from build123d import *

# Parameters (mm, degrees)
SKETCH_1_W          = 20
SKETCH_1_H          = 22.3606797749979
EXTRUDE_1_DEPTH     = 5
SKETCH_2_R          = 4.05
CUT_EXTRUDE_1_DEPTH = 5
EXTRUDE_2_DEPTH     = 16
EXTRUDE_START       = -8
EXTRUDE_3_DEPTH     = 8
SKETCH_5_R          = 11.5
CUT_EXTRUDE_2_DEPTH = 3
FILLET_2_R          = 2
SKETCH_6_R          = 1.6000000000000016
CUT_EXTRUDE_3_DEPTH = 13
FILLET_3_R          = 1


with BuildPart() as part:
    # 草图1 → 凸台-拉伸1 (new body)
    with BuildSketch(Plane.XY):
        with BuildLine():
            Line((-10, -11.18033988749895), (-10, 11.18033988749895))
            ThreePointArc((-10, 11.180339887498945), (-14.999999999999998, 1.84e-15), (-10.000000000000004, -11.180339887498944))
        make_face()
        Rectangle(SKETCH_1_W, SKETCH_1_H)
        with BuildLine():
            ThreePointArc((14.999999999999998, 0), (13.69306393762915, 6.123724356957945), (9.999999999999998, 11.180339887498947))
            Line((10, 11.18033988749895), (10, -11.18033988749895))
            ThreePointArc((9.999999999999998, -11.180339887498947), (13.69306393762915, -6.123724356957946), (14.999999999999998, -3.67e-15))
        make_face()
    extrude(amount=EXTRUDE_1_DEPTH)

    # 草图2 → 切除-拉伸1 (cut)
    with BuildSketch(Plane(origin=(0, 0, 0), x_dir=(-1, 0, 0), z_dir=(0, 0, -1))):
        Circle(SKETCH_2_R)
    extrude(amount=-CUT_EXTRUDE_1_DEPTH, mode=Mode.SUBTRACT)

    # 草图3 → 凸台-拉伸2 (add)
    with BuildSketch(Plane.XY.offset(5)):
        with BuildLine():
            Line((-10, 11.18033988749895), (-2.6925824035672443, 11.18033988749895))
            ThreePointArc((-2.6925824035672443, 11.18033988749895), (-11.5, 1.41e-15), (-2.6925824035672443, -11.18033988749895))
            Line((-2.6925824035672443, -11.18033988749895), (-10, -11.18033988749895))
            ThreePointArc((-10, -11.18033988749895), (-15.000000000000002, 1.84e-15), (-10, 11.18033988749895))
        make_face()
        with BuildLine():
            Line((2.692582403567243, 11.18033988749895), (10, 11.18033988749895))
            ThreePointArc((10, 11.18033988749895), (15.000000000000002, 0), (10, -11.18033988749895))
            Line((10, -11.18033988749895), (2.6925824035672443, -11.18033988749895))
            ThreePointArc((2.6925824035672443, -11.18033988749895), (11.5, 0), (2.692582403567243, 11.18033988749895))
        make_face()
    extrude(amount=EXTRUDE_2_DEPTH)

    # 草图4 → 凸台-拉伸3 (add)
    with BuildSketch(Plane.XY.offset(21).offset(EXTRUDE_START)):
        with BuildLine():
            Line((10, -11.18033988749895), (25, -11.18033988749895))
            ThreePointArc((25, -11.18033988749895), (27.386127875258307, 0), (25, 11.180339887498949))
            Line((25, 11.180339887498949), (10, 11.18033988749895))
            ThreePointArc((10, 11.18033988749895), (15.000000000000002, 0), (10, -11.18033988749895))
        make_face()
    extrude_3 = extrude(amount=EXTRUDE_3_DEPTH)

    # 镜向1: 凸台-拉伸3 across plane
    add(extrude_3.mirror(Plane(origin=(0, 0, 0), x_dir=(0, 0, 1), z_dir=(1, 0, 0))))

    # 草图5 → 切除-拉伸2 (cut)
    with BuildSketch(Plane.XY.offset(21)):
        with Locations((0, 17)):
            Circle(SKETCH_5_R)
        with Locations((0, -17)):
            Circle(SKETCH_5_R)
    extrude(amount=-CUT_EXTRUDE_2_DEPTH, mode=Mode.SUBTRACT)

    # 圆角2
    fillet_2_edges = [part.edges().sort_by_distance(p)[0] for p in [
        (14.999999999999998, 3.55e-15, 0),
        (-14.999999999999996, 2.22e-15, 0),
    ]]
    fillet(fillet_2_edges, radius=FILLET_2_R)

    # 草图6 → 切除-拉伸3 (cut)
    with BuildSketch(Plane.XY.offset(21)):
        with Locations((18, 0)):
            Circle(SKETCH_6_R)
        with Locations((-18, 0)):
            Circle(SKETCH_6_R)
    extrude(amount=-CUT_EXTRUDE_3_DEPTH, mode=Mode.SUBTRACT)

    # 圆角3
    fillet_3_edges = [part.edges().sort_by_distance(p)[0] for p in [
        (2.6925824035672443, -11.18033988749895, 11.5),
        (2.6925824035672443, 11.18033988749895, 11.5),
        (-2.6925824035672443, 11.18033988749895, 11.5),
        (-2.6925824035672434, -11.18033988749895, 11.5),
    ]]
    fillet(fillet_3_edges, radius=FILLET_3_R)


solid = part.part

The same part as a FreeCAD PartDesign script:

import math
import FreeCAD as App
import Part
import Sketcher

V = App.Vector
Q = App.Units.Quantity


def edges_at(feature, points):
    """Names of the edges that pass closest to the given points."""
    edges = feature.Shape.Edges
    near = lambda p: min(range(len(edges)), key=lambda i: edges[i].distToShape(Part.Vertex(*p))[0])
    return sorted({f"Edge{near(p) + 1}" for p in points})

doc = App.newDocument("Part")
body = doc.addObject("PartDesign::Body", "Body")

# Sketch on XY plane
sketch1 = doc.addObject("Sketcher::SketchObject", "Sketch")
body.addObject(sketch1)
sketch1.AttachmentSupport = (doc.XY_Plane, [""])
sketch1.MapMode = "FlatFace"
sketch1.addGeometry(Part.ArcOfCircle(Part.Circle(V(0, 0, 0), V(0, 0, 1), 15), math.radians(132), math.radians(228)), False)
sketch1.addGeometry(Part.LineSegment(V(-10, -11, 0), V(10, -11, 0)), False)
sketch1.addGeometry(Part.ArcOfCircle(Part.Circle(V(0, 0, 0), V(0, 0, 1), 15), math.radians(-48), math.radians(48)), False)
sketch1.addGeometry(Part.LineSegment(V(10, 11, 0), V(-10, 11, 0)), False)
sketch1.addConstraint(Sketcher.Constraint("Coincident", 0, 2, 1, 1))
sketch1.addConstraint(Sketcher.Constraint("Coincident", 1, 2, 2, 1))
sketch1.addConstraint(Sketcher.Constraint("Coincident", 2, 2, 3, 1))
sketch1.addConstraint(Sketcher.Constraint("Coincident", 3, 2, 0, 1))
sketch1.addConstraint(Sketcher.Constraint("Horizontal", 1))
sketch1.addConstraint(Sketcher.Constraint("Horizontal", 3))
sketch1.addConstraint(Sketcher.Constraint("Coincident", 0, 3, -1, 1))
sketch1.addConstraint(Sketcher.Constraint("Coincident", 2, 3, -1, 1))
sketch1.addConstraint(Sketcher.Constraint("Equal", 0, 2))
sketch1.addConstraint(Sketcher.Constraint("Vertical", 1, 2, 2, 2))
sketch1.addConstraint(Sketcher.Constraint("Radius", 0, Q("15 mm")))
sketch1.addConstraint(Sketcher.Constraint("DistanceX", 1, 1, 1, 2, Q("20 mm")))
pad1 = doc.addObject("PartDesign::Pad", "Pad")
body.addObject(pad1)
pad1.Profile = sketch1
pad1.Length = 5

# Sketch on XY plane
sketch2 = doc.addObject("Sketcher::SketchObject", "Sketch001")
body.addObject(sketch2)
sketch2.AttachmentSupport = (doc.XY_Plane, [""])
sketch2.MapMode = "FlatFace"
sketch2.addGeometry(Part.Circle(V(0, 0, 0), V(0, 0, 1), 4), False)
sketch2.addConstraint(Sketcher.Constraint("Coincident", 0, 3, -1, 1))
sketch2.addConstraint(Sketcher.Constraint("Diameter", 0, Q("8.1 mm")))
pocket1 = doc.addObject("PartDesign::Pocket", "Pocket")
body.addObject(pocket1)
pocket1.Profile = sketch2
pocket1.Length = 5
pocket1.Reversed = True

# Sketch on XY plane
sketch3 = doc.addObject("Sketcher::SketchObject", "Sketch002")
body.addObject(sketch3)
sketch3.AttachmentSupport = (doc.XY_Plane, [""])
sketch3.MapMode = "FlatFace"
sketch3.AttachmentOffset = App.Placement(V(0, 0, 5), App.Rotation())
sketch3.addGeometry(Part.LineSegment(V(-3, 11, 0), V(-10, 11, 0)), False)
sketch3.addGeometry(Part.ArcOfCircle(Part.Circle(V(0, 0, 0), V(0, 0, 1), 15), math.radians(132), math.radians(228)), False)
sketch3.addGeometry(Part.LineSegment(V(-10, -11, 0), V(-3, -11, 0)), False)
sketch3.addGeometry(Part.ArcOfCircle(Part.Circle(V(0, 0, 0), V(0, 0, 1), 12), math.radians(104), math.radians(256)), False)
sketch3.addGeometry(Part.LineSegment(V(10, 11, 0), V(3, 11, 0)), False)
sketch3.addGeometry(Part.ArcOfCircle(Part.Circle(V(0, 0, 0), V(0, 0, 1), 12), math.radians(-76), math.radians(76)), False)
sketch3.addGeometry(Part.LineSegment(V(3, -11, 0), V(10, -11, 0)), False)
sketch3.addGeometry(Part.ArcOfCircle(Part.Circle(V(0, 0, 0), V(0, 0, 1), 15), math.radians(-48), math.radians(48)), False)
sketch3.addConstraint(Sketcher.Constraint("Coincident", 0, 2, 1, 1))
sketch3.addConstraint(Sketcher.Constraint("Coincident", 1, 2, 2, 1))
sketch3.addConstraint(Sketcher.Constraint("Coincident", 2, 2, 3, 2))
sketch3.addConstraint(Sketcher.Constraint("Coincident", 3, 1, 0, 1))
sketch3.addConstraint(Sketcher.Constraint("Coincident", 4, 2, 5, 2))
sketch3.addConstraint(Sketcher.Constraint("Coincident", 5, 1, 6, 1))
sketch3.addConstraint(Sketcher.Constraint("Coincident", 6, 2, 7, 1))
sketch3.addConstraint(Sketcher.Constraint("Coincident", 7, 2, 4, 1))
sketch3.addConstraint(Sketcher.Constraint("Horizontal", 0))
sketch3.addConstraint(Sketcher.Constraint("Horizontal", 2))
sketch3.addConstraint(Sketcher.Constraint("Horizontal", 4))
sketch3.addConstraint(Sketcher.Constraint("Horizontal", 6))
sketch3.addConstraint(Sketcher.Constraint("Coincident", 1, 3, -1, 1))
sketch3.addConstraint(Sketcher.Constraint("Coincident", 3, 3, -1, 1))
sketch3.addConstraint(Sketcher.Constraint("Coincident", 5, 3, -1, 1))
sketch3.addConstraint(Sketcher.Constraint("Coincident", 7, 3, -1, 1))
sketch3.addConstraint(Sketcher.Constraint("Equal", 3, 5))
sketch3.addConstraint(Sketcher.Constraint("Equal", 1, 7))
sketch3.addConstraint(Sketcher.Constraint("Horizontal", 3, 1, 4, 2))
sketch3.addConstraint(Sketcher.Constraint("Horizontal", 2, 2, 5, 1))
sketch3.addConstraint(Sketcher.Constraint("Vertical", 0, 2, 1, 2))
sketch3.addConstraint(Sketcher.Constraint("Radius", 1, Q("15 mm")))
sketch3.addConstraint(Sketcher.Constraint("Radius", 3, Q("11.5 mm")))
sketch3.addConstraint(Sketcher.Constraint("DistanceX", 0, 2, -1, 1, Q("10 mm")))
pad2 = doc.addObject("PartDesign::Pad", "Pad001")
body.addObject(pad2)
pad2.Profile = sketch3
pad2.Length = 16

# Sketch on XY plane
sketch4 = doc.addObject("Sketcher::SketchObject", "Sketch003")
body.addObject(sketch4)
sketch4.AttachmentSupport = (doc.XY_Plane, [""])
sketch4.MapMode = "FlatFace"
sketch4.AttachmentOffset = App.Placement(V(0, 0, 13), App.Rotation())
sketch4.addGeometry(Part.LineSegment(V(10, -11, 0), V(25, -11, 0)), False)
sketch4.addGeometry(Part.ArcOfCircle(Part.Circle(V(0, 0, 0), V(0, 0, 1), 27), math.radians(-24), math.radians(24)), False)
sketch4.addGeometry(Part.LineSegment(V(25, 11, 0), V(10, 11, 0)), False)
sketch4.addGeometry(Part.ArcOfCircle(Part.Circle(V(0, 0, 0), V(0, 0, 1), 15), math.radians(-48), math.radians(48)), False)
sketch4.addConstraint(Sketcher.Constraint("Coincident", 0, 2, 1, 1))
sketch4.addConstraint(Sketcher.Constraint("Coincident", 1, 2, 2, 1))
sketch4.addConstraint(Sketcher.Constraint("Coincident", 2, 2, 3, 2))
sketch4.addConstraint(Sketcher.Constraint("Coincident", 3, 1, 0, 1))
sketch4.addConstraint(Sketcher.Constraint("Horizontal", 0))
sketch4.addConstraint(Sketcher.Constraint("Horizontal", 2))
sketch4.addConstraint(Sketcher.Constraint("Coincident", 1, 3, -1, 1))
sketch4.addConstraint(Sketcher.Constraint("Coincident", 3, 3, -1, 1))
sketch4.addConstraint(Sketcher.Constraint("Vertical", 0, 2, 1, 2))
sketch4.addConstraint(Sketcher.Constraint("Radius", 3, Q("15 mm")))
sketch4.addConstraint(Sketcher.Constraint("DistanceX", 0, 1, 0, 2, Q("15 mm")))
sketch4.addConstraint(Sketcher.Constraint("DistanceX", -1, 1, 0, 2, Q("25 mm")))
pad3 = doc.addObject("PartDesign::Pad", "Pad002")
body.addObject(pad3)
pad3.Profile = sketch4
pad3.Length = 8
doc.recompute()

mirrored = doc.addObject("PartDesign::Mirrored", "Mirrored")
body.addObject(mirrored)
mirrored.Originals = [pad3]
mirrored.MirrorPlane = (doc.YZ_Plane, [""])
body.Tip = mirrored

# Sketch on XY plane
sketch5 = doc.addObject("Sketcher::SketchObject", "Sketch004")
body.addObject(sketch5)
sketch5.AttachmentSupport = (doc.XY_Plane, [""])
sketch5.MapMode = "FlatFace"
sketch5.AttachmentOffset = App.Placement(V(0, 0, 21), App.Rotation())
sketch5.addGeometry(Part.Circle(V(0, 17, 0), V(0, 0, 1), 12), False)
sketch5.addGeometry(Part.Circle(V(0, -17, 0), V(0, 0, 1), 12), False)
sketch5.addConstraint(Sketcher.Constraint("Equal", 0, 1))
sketch5.addConstraint(Sketcher.Constraint("Symmetric", 0, 3, 1, 3, -1, 1))
sketch5.addConstraint(Sketcher.Constraint("PointOnObject", 0, 3, -2))
sketch5.addConstraint(Sketcher.Constraint("Diameter", 0, Q("23 mm")))
sketch5.addConstraint(Sketcher.Constraint("DistanceY", -1, 1, 0, 3, Q("17 mm")))
pocket2 = doc.addObject("PartDesign::Pocket", "Pocket001")
body.addObject(pocket2)
pocket2.Profile = sketch5
pocket2.Length = 3
doc.recompute()

fillet = doc.addObject("PartDesign::Fillet", "Fillet")
body.addObject(fillet)
fillet.Base = (pocket2, edges_at(pocket2, [(15, 0, 0), (-15, 0, 0)]))
fillet.Radius = 2

# Sketch on XY plane
sketch6 = doc.addObject("Sketcher::SketchObject", "Sketch005")
body.addObject(sketch6)
sketch6.AttachmentSupport = (doc.XY_Plane, [""])
sketch6.MapMode = "FlatFace"
sketch6.AttachmentOffset = App.Placement(V(0, 0, 21), App.Rotation())
sketch6.addGeometry(Part.Circle(V(18, 0, 0), V(0, 0, 1), 1.6), False)
sketch6.addGeometry(Part.Circle(V(-18, 0, 0), V(0, 0, 1), 1.6), False)
sketch6.addConstraint(Sketcher.Constraint("Equal", 0, 1))
sketch6.addConstraint(Sketcher.Constraint("Symmetric", 0, 3, 1, 3, -1, 1))
sketch6.addConstraint(Sketcher.Constraint("PointOnObject", 0, 3, -1))
sketch6.addConstraint(Sketcher.Constraint("Diameter", 0, Q("3.2 mm")))
sketch6.addConstraint(Sketcher.Constraint("DistanceX", -1, 1, 0, 3, Q("18 mm")))
pocket3 = doc.addObject("PartDesign::Pocket", "Pocket002")
body.addObject(pocket3)
pocket3.Profile = sketch6
pocket3.Length = 13
doc.recompute()

fillet2 = doc.addObject("PartDesign::Fillet", "Fillet001")
body.addObject(fillet2)
fillet2.Base = (pocket3, edges_at(pocket3, [
    (2.693, -11.18, 11.5),
    (2.693, 11.18, 11.5),
    (-2.693, 11.18, 11.5),
    (-2.693, -11.18, 11.5),
]))
fillet2.Radius = 1

doc.recompute()
